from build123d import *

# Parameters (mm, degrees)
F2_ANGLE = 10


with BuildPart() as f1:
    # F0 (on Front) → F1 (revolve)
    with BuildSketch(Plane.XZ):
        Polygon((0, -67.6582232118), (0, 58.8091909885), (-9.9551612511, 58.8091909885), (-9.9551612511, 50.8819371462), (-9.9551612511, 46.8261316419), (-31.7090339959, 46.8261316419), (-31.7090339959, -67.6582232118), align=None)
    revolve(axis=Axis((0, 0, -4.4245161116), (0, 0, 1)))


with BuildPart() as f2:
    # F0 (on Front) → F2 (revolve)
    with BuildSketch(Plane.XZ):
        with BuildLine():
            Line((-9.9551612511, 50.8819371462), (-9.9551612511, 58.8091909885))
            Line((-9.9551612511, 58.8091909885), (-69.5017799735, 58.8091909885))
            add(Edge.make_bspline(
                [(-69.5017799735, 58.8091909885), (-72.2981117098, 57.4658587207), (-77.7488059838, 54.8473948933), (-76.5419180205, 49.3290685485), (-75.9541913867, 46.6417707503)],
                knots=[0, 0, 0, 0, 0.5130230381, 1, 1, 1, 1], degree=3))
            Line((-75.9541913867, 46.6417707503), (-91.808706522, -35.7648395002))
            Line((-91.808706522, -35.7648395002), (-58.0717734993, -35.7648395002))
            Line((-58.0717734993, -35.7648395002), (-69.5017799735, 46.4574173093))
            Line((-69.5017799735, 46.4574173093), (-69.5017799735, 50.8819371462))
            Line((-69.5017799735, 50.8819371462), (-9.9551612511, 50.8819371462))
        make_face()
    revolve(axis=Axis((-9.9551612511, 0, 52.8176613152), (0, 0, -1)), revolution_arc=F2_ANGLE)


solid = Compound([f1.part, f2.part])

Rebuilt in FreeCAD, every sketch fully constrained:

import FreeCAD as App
import Part
import Sketcher


def add_polygon(sketch, points):
    """Adds a closed chain of lines whose ends are joined by coincident constraints."""
    first, n = sketch.GeometryCount, len(points)
    for a, b in zip(points, points[1:] + points[:1]):
        sketch.addGeometry(Part.LineSegment(App.Vector(*a, 0), App.Vector(*b, 0)), False)
    for i in range(n):
        sketch.addConstraint(Sketcher.Constraint("Coincident", first + i, 2, first + (i + 1) % n, 1))

doc = App.newDocument("Part")
body = doc.addObject("PartDesign::Body", "Body")

# Sketch on XZ plane
sketch1 = body.newObject("Sketcher::SketchObject", "Sketch")
sketch1.AttachmentSupport = (doc.getObject("XZ_Plane"), [""])
sketch1.MapMode = "FlatFace"
add_polygon(sketch1, [(0, -67.658223), (0, 58.809191), (-9.955161, 58.809191), (-9.955161, 46.826132), (-31.709034, 46.826132), (-31.709034, -67.658223)])  # lines 0-5
sketch1.addConstraint([
    Sketcher.Constraint("Vertical", 0),
    Sketcher.Constraint("Horizontal", 1),
    Sketcher.Constraint("Vertical", 2),
    Sketcher.Constraint("Horizontal", 3),
    Sketcher.Constraint("Vertical", 4),
    Sketcher.Constraint("Horizontal", 5),
    Sketcher.Constraint("PointOnObject", 0, 2, -2),
    Sketcher.Constraint("DistanceX", 1, 2, 1, 1, 9.955161),
    Sketcher.Constraint("DistanceY", 2, 2, 2, 1, 11.983059),
    Sketcher.Constraint("DistanceX", 3, 2, 3, 1, 21.753873),
    Sketcher.Constraint("DistanceY", 0, 1, 0, 2, 126.467414),
    Sketcher.Constraint("DistanceY", -1, 1, 0, 2, 58.809191),
])
revolution = body.newObject("PartDesign::Revolution", "Revolution")
revolution.Profile = sketch1
revolution.ReferenceAxis = (sketch1, ["V_Axis"])
revolution.Angle = 360
body2 = doc.addObject("PartDesign::Body", "Body001")

# Sketch on XZ plane
sketch2 = body2.newObject("Sketcher::SketchObject", "Sketch001")
sketch2.AttachmentSupport = (doc.getObject("XZ_Plane001"), [""])
sketch2.MapMode = "FlatFace"
sketch2.addGeometry([
    Part.LineSegment(App.Vector(-9.955161, 50.881937, 0), App.Vector(-9.955161, 58.809191, 0)),  # 0
    Part.LineSegment(App.Vector(-9.955161, 58.809191, 0), App.Vector(-69.50178, 58.809191, 0)),  # 1
    Part.BSplineCurve([App.Vector(-69.50178, 58.809191, 0), App.Vector(-72.298112, 57.465859, 0), App.Vector(-77.748806, 54.847395, 0), App.Vector(-76.541918, 49.329069, 0), App.Vector(-75.954191, 46.641771, 0)], [4, 1, 4], [0, 0.513023038, 1], False, 3, [1, 1, 1, 1, 1], False),  # 2
    Part.LineSegment(App.Vector(-75.954191, 46.641771, 0), App.Vector(-91.808707, -35.76484, 0)),  # 3
    Part.LineSegment(App.Vector(-91.808707, -35.76484, 0), App.Vector(-58.071773, -35.76484, 0)),  # 4
    Part.LineSegment(App.Vector(-58.071773, -35.76484, 0), App.Vector(-69.50178, 46.457417, 0)),  # 5
    Part.LineSegment(App.Vector(-69.50178, 46.457417, 0), App.Vector(-69.50178, 50.881937, 0)),  # 6
    Part.LineSegment(App.Vector(-69.50178, 50.881937, 0), App.Vector(-9.955161, 50.881937, 0)),  # 7
], False)
sketch2.addGeometry(Part.LineSegment(App.Vector(-9.955161, 58.809191, 0), App.Vector(-9.955161, -35.76484, 0)), True)  # axis
sketch2.addConstraint([
    Sketcher.Constraint("Block", 2),
    Sketcher.Constraint("Coincident", 0, 2, 1, 1),
    Sketcher.Constraint("Coincident", 1, 2, 2, 1),
    Sketcher.Constraint("Coincident", 2, 2, 3, 1),
    Sketcher.Constraint("Coincident", 3, 2, 4, 1),
    Sketcher.Constraint("Coincident", 4, 2, 5, 1),
    Sketcher.Constraint("Coincident", 5, 2, 6, 1),
    Sketcher.Constraint("Coincident", 6, 2, 7, 1),
    Sketcher.Constraint("Coincident", 7, 2, 0, 1),
    Sketcher.Constraint("Vertical", 0),
    Sketcher.Constraint("Horizontal", 1),
    Sketcher.Constraint("Horizontal", 4),
    Sketcher.Constraint("Vertical", 6),
    Sketcher.Constraint("Horizontal", 7),
    Sketcher.Constraint("Vertical", 8),
    Sketcher.Constraint("Coincident", 8, 1, 0, 2),
    Sketcher.Constraint("Horizontal", 4, 2, 8, 2),
    Sketcher.Constraint("Vertical", 1, 2, 5, 2),
    Sketcher.Constraint("DistanceX", 1, 2, 1, 1, 59.546619),
    Sketcher.Constraint("DistanceY", 6, 1, 6, 2, 4.42452),
    Sketcher.Constraint("DistanceY", 8, 2, 8, 1, 94.57403),
    Sketcher.Constraint("Distance", 5, 83.012918),
    Sketcher.Constraint("DistanceX", 4, 1, 4, 2, 33.736933),
    Sketcher.Constraint("DistanceY", 0, 1, 0, 2, 7.927254),
])
revolution2 = body2.newObject("PartDesign::Revolution", "Revolution001")
revolution2.Profile = sketch2
revolution2.ReferenceAxis = (sketch2, ["Axis0"])
revolution2.Angle = 10

doc.recompute()
